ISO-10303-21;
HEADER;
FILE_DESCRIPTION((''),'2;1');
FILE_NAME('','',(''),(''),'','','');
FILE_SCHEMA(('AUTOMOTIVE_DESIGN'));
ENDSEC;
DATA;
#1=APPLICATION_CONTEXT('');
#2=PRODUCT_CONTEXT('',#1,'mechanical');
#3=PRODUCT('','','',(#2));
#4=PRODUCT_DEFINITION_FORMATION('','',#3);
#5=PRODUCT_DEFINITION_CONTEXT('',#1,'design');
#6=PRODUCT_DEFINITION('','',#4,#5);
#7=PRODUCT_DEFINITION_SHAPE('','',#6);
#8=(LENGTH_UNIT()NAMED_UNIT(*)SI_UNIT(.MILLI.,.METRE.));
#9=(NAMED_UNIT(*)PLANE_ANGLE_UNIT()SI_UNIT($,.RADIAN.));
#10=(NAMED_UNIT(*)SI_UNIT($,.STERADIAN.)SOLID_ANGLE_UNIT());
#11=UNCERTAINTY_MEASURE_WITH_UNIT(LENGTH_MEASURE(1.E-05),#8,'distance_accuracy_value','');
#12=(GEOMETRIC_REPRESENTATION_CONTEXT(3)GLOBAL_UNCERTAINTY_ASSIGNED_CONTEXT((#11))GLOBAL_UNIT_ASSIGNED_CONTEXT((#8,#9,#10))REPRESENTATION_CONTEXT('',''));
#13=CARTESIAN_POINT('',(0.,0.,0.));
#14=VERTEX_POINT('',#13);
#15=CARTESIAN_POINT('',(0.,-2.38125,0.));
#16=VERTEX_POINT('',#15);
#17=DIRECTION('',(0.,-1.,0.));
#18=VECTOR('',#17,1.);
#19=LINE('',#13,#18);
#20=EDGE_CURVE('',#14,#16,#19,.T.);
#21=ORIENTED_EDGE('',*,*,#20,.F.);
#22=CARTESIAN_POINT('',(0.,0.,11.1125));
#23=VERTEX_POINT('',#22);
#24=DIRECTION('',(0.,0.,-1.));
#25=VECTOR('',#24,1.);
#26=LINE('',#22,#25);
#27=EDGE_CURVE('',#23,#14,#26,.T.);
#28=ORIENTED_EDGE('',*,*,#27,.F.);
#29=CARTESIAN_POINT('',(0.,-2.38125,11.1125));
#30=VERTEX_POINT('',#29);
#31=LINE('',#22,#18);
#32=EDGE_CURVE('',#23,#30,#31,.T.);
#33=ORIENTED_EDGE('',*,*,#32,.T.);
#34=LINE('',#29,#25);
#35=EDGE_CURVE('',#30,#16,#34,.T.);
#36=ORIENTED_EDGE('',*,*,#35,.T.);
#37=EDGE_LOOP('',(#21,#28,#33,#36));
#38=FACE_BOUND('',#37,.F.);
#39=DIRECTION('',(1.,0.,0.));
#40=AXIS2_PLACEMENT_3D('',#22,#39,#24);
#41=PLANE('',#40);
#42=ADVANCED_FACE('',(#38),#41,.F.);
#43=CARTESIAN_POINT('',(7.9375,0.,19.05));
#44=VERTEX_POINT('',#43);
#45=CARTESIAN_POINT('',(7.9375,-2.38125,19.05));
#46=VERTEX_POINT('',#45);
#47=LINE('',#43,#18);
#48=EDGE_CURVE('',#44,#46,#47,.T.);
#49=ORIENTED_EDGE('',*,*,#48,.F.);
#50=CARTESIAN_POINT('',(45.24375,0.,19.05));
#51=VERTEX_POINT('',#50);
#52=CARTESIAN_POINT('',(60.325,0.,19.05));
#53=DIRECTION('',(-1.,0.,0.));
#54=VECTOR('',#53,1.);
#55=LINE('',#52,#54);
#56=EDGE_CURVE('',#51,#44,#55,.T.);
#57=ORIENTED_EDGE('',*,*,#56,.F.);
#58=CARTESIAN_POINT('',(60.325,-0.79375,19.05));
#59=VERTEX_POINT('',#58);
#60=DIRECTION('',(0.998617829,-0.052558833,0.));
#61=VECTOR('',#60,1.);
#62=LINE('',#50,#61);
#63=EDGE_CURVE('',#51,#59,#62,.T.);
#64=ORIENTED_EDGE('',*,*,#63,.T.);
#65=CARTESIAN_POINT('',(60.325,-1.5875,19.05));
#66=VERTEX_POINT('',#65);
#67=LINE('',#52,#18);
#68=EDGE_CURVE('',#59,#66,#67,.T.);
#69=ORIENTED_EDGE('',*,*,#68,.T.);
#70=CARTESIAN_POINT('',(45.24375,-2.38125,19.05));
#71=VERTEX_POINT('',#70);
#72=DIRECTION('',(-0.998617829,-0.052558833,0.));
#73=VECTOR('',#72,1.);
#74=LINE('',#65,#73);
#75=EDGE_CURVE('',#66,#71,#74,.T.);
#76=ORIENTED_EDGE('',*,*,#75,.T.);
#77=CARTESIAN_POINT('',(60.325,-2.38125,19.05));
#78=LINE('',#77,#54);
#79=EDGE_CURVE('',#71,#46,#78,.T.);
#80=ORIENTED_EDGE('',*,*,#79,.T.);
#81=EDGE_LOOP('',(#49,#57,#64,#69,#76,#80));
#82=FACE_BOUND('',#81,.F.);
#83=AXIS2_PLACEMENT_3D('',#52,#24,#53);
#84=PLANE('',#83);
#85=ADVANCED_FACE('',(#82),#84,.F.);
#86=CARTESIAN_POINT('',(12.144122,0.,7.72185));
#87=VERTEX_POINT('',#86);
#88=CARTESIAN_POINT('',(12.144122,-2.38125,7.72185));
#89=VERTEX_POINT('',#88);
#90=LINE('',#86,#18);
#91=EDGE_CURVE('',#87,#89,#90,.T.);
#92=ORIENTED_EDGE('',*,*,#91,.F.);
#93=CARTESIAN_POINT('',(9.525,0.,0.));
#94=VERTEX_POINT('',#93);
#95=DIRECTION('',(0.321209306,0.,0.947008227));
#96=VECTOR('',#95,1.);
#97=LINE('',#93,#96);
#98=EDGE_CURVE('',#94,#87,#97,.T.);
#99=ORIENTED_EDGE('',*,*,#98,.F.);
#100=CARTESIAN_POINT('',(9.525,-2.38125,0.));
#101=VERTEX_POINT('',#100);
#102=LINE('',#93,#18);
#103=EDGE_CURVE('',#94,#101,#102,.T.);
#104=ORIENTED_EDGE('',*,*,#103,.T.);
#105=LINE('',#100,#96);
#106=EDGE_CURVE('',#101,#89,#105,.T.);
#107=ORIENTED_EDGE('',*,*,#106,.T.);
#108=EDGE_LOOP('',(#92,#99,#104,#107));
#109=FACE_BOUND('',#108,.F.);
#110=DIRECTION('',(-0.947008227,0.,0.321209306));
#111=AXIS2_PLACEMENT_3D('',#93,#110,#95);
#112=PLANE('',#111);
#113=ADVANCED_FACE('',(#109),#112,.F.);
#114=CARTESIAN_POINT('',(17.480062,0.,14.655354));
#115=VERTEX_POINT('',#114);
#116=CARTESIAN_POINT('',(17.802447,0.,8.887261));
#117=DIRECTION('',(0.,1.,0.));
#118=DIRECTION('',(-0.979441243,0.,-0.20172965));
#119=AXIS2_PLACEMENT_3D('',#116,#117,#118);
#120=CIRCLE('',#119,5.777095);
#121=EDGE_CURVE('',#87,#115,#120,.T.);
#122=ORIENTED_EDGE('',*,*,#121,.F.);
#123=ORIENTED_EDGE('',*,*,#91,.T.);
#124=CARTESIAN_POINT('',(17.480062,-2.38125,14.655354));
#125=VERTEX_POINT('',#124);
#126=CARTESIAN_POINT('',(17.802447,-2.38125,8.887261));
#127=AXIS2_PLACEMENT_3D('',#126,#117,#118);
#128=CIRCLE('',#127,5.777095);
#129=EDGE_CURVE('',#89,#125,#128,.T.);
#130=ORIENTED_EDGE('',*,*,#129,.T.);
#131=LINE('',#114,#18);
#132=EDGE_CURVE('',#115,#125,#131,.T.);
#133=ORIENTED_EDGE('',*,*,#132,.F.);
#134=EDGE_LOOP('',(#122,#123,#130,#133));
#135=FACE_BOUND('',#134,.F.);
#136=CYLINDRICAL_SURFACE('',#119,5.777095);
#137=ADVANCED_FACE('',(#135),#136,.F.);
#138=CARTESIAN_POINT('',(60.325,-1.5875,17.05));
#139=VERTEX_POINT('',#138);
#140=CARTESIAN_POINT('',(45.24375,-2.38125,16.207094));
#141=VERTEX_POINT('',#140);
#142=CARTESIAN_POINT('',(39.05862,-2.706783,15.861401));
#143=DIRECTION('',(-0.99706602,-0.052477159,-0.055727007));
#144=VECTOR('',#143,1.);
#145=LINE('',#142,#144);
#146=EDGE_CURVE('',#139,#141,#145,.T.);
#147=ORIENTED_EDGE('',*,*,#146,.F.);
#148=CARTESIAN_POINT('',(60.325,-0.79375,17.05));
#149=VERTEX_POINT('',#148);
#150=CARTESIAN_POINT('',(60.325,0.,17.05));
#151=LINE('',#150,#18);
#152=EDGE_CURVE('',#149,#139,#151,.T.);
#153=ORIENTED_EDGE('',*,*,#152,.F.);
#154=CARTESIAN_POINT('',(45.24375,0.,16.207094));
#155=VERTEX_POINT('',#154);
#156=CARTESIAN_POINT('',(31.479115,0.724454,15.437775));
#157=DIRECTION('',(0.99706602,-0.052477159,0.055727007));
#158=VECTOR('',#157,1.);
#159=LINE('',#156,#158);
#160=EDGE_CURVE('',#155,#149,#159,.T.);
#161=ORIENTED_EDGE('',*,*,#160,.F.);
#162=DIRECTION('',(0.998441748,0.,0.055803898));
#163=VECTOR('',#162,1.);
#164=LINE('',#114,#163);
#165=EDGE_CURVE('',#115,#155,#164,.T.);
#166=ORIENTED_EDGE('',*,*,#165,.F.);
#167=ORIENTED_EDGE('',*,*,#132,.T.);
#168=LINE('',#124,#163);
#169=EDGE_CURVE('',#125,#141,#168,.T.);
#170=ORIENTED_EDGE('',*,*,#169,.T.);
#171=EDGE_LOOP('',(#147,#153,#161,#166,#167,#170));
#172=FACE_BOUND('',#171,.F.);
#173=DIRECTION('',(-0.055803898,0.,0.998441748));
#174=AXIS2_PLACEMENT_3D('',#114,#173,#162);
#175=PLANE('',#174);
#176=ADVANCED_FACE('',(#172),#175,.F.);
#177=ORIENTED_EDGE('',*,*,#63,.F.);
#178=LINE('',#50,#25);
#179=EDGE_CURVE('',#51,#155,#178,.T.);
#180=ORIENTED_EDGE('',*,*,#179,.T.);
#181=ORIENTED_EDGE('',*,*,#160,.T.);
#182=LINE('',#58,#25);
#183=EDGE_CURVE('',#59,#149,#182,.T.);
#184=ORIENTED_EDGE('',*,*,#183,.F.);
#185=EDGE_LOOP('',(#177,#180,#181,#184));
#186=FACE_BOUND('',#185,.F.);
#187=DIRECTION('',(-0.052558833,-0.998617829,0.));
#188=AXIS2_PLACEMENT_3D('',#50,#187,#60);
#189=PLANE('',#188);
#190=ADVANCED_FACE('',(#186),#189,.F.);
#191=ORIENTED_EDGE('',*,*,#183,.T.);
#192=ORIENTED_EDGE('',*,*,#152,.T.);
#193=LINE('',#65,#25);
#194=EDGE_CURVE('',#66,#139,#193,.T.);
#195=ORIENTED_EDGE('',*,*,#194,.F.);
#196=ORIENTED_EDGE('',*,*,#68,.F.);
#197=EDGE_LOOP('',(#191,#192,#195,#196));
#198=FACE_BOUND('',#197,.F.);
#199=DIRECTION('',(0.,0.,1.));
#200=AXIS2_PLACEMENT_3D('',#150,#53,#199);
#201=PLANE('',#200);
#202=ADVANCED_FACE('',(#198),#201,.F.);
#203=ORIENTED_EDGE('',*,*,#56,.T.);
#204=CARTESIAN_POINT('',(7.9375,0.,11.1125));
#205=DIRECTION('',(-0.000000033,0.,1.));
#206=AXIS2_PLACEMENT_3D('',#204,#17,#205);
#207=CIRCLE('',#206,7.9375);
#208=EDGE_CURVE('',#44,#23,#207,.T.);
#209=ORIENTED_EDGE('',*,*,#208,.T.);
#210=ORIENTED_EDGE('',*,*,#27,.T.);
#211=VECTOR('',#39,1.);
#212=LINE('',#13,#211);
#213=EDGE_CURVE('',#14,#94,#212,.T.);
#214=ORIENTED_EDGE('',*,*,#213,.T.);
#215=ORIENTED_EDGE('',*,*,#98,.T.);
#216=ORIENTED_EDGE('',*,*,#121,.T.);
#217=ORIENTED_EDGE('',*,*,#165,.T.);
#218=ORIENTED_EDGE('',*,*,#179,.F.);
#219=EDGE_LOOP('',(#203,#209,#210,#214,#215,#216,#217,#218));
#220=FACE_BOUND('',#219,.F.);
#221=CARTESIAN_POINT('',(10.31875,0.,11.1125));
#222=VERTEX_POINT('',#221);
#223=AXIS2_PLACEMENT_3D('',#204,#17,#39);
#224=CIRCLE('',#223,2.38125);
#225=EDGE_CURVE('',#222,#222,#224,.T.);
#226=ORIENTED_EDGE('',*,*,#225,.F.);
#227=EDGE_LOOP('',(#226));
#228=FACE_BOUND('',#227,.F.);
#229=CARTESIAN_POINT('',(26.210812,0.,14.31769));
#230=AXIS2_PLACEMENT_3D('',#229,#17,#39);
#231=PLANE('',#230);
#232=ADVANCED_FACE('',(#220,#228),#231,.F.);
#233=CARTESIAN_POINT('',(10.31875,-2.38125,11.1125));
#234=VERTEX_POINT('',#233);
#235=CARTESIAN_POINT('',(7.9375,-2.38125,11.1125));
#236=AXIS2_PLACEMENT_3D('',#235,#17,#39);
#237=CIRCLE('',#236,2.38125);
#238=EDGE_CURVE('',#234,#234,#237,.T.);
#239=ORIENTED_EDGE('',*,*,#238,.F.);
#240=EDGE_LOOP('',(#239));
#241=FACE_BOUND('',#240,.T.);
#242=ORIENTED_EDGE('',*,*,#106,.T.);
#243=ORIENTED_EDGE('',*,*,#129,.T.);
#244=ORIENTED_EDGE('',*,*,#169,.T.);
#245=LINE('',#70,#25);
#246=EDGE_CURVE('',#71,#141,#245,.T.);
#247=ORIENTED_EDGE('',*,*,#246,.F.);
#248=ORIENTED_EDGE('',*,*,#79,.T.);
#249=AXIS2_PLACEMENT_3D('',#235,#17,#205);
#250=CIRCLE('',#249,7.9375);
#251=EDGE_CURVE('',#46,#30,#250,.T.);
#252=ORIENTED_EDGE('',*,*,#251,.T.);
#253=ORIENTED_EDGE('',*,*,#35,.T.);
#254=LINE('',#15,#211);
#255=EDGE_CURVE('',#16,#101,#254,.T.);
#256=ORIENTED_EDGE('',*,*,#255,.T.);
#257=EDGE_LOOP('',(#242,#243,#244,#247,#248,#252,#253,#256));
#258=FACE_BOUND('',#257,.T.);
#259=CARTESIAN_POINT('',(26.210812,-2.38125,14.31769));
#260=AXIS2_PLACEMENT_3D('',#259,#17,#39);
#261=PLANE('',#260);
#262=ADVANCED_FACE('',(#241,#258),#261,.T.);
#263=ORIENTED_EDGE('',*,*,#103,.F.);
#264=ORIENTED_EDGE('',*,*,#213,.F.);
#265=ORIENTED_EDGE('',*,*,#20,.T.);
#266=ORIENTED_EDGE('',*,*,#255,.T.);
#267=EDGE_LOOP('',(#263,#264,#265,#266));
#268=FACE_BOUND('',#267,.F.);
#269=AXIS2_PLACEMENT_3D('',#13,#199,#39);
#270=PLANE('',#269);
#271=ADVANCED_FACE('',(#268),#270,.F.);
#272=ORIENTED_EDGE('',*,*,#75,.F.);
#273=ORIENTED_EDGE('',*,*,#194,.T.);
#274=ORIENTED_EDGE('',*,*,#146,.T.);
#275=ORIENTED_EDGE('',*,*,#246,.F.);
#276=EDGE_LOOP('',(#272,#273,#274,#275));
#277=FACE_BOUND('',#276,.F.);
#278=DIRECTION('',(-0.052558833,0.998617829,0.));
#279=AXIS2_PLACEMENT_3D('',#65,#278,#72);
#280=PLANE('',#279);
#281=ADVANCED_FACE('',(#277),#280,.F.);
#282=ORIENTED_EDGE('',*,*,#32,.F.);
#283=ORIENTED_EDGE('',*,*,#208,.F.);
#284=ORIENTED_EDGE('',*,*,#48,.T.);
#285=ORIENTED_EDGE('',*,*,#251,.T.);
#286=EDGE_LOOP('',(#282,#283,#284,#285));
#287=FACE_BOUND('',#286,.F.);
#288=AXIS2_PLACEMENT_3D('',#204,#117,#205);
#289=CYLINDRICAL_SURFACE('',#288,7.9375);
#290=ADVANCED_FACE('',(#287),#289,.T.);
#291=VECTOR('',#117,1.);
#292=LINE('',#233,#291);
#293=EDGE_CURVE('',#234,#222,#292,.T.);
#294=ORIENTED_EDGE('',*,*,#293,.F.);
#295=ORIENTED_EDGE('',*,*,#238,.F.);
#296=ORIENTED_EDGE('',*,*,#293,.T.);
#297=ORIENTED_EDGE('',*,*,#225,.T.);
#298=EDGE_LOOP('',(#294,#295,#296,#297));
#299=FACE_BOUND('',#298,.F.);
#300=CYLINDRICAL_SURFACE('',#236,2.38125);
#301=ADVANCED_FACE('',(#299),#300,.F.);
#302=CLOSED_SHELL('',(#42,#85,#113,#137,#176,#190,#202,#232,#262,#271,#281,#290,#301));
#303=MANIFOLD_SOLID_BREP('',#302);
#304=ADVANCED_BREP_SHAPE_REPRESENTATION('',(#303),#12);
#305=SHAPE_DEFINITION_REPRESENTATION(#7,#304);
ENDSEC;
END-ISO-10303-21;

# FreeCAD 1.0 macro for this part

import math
import FreeCAD as App
import Part
import Sketcher
Q = App.Units.Quantity

doc = App.newDocument("Part")
body = doc.addObject("PartDesign::Body", "Body")

sketch1 = body.newObject("Sketcher::SketchObject", "Sketch")
sketch1.AttachmentSupport = (doc.getObject("XZ_Plane"), [""])
sketch1.MapMode = "FlatFace"
sketch1.addGeometry([
    Part.LineSegment(App.Vector(60.3, 19.1, 0), App.Vector(7.9, 19.1, 0)),
    Part.ArcOfCircle(Part.Circle(App.Vector(7.9, 11.1, 0), App.Vector(0, 0, 1), 7.9), math.radians(90), math.radians(180)),
    Part.LineSegment(App.Vector(0, 11.1, 0), App.Vector(0, 0, 0)),
    Part.LineSegment(App.Vector(0, 0, 0), App.Vector(9.5, 0, 0)),
    Part.LineSegment(App.Vector(9.5, 0, 0), App.Vector(12.1, 7.7, 0)),
    Part.ArcOfCircle(Part.Circle(App.Vector(17.8, 8.9, 0), App.Vector(0, 0, 1), 5.8), math.radians(93), math.radians(192)),
    Part.LineSegment(App.Vector(17.5, 14.7, 0), App.Vector(60.3, 17.1, 0)),
    Part.LineSegment(App.Vector(60.3, 17.1, 0), App.Vector(60.3, 19.1, 0)),
], False)
sketch1.addConstraint([
    Sketcher.Constraint("Tangent", 0, 2, 1, 1),
    Sketcher.Constraint("Tangent", 1, 2, 2, 1),
    Sketcher.Constraint("Coincident", 2, 2, 3, 1),
    Sketcher.Constraint("Coincident", 3, 2, 4, 1),
    Sketcher.Constraint("Coincident", 4, 2, 5, 2),
    Sketcher.Constraint("Tangent", 5, 1, 6, 1),
    Sketcher.Constraint("Coincident", 6, 2, 7, 1),
    Sketcher.Constraint("Coincident", 7, 2, 0, 1),
    Sketcher.Constraint("Horizontal", 0),
    Sketcher.Constraint("Vertical", 2),
    Sketcher.Constraint("Horizontal", 3),
    Sketcher.Constraint("Vertical", 7),
    Sketcher.Constraint("Coincident", 2, 2, -1, 1),
    Sketcher.Constraint("Radius", 1, Q("0.3125 in")),
    Sketcher.Constraint("DistanceX", 0, 2, 0, 1, Q("2.0625 in")),
    Sketcher.Constraint("DistanceX", 3, 1, 3, 2, Q("0.375 in")),
    Sketcher.Constraint("DistanceY", 2, 2, 2, 1, Q("0.4375 in")),
    Sketcher.Constraint("DistanceY", 7, 1, 7, 2, 2.0),
    Sketcher.Constraint("Radius", 5, 5.777095),
    Sketcher.Constraint("Distance", 4, 8.153942),
    Sketcher.Constraint("DistanceY", -1, 1, 5, 3, 8.887261),
    Sketcher.Constraint("DistanceY", -1, 1, 4, 2, 7.72185),
])
pad1 = body.newObject("PartDesign::Pad", "Pad")
pad1.Profile = sketch1
pad1.Length = Q("0.09375 in")

sketch2 = body.newObject("Sketcher::SketchObject", "Sketch001")
sketch2.AttachmentSupport = (doc.getObject("XZ_Plane"), [""])
sketch2.MapMode = "FlatFace"
sketch2.AttachmentOffset = App.Placement(App.Vector(0, 0, 0.09375 * 25.4), App.Rotation())
sketch2.addGeometry(Part.Circle(App.Vector(7.9, 11.1, 0), App.Vector(0, 0, 1), 2.4), False)
sketch2.addConstraint([
    Sketcher.Constraint("Diameter", 0, Q("0.1875 in")),
    Sketcher.Constraint("DistanceX", -1, 1, 0, 3, Q("0.3125 in")),
    Sketcher.Constraint("DistanceY", -1, 1, 0, 3, Q("0.4375 in")),
])
pocket1 = body.newObject("PartDesign::Pocket", "Pocket")
pocket1.Profile = sketch2
pocket1.Length = Q("1 in")

sketch3 = body.newObject("Sketcher::SketchObject", "Sketch002")
sketch3.AttachmentSupport = (doc.getObject("XY_Plane"), [""])
sketch3.MapMode = "FlatFace"
sketch3.AttachmentOffset = App.Placement(App.Vector(0, 0, 0.75 * 25.4), App.Rotation())
sketch3.addGeometry([
    Part.LineSegment(App.Vector(60.3, 0, 0), App.Vector(45.2, 0, 0)),
    Part.LineSegment(App.Vector(45.2, 0, 0), App.Vector(60.3, -0.8, 0)),
    Part.LineSegment(App.Vector(60.3, -0.8, 0), App.Vector(60.3, 0, 0)),
    Part.LineSegment(App.Vector(60.3, -2.4, 0), App.Vector(60.3, -1.6, 0)),
    Part.LineSegment(App.Vector(60.3, -1.6, 0), App.Vector(45.2, -2.4, 0)),
    Part.LineSegment(App.Vector(45.2, -2.4, 0), App.Vector(60.3, -2.4, 0)),
], False)
sketch3.addConstraint([
    Sketcher.Constraint("Coincident", 0, 2, 1, 1),
    Sketcher.Constraint("Coincident", 1, 2, 2, 1),
    Sketcher.Constraint("Coincident", 2, 2, 0, 1),
    Sketcher.Constraint("Coincident", 3, 2, 4, 1),
    Sketcher.Constraint("Coincident", 4, 2, 5, 1),
    Sketcher.Constraint("Coincident", 5, 2, 3, 1),
    Sketcher.Constraint("Horizontal", 0),
    Sketcher.Constraint("Vertical", 2),
    Sketcher.Constraint("Vertical", 3),
    Sketcher.Constraint("Horizontal", 5),
    Sketcher.Constraint("PointOnObject", 0, 2, -1),
    Sketcher.Constraint("Vertical", 2, 2, 3, 2),
    Sketcher.Constraint("Vertical", 0, 2, 4, 2),
    Sketcher.Constraint("Equal", 2, 3),
    Sketcher.Constraint("DistanceX", 0, 2, 0, 1, Q("0.59375 in")),
    Sketcher.Constraint("DistanceY", 2, 1, 2, 2, Q("0.03125 in")),
    Sketcher.Constraint("DistanceX", -1, 1, 0, 2, Q("1.78125 in")),
    Sketcher.Constraint("DistanceY", 3, 2, -1, 1, Q("0.0625 in")),
])
pocket2 = body.newObject("PartDesign::Pocket", "Pocket001")
pocket2.Profile = sketch3
pocket2.Length = Q("1 in")

doc.recompute()
